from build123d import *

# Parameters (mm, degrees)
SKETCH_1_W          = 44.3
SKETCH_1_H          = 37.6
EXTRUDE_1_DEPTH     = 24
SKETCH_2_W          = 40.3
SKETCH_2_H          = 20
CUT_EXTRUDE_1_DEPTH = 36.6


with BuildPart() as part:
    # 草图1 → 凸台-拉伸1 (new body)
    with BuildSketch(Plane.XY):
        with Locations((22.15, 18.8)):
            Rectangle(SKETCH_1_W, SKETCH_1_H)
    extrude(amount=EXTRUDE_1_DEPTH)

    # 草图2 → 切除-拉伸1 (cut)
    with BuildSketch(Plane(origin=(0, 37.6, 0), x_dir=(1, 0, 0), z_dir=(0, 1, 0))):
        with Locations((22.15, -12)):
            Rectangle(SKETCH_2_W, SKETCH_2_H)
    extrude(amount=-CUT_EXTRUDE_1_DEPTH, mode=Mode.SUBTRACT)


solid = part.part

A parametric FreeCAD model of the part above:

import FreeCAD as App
import Part
import Sketcher

V = App.Vector
Q = App.Units.Quantity


def add_polygon(sketch, points):
    """Adds a closed chain of lines whose ends are joined by coincident constraints."""
    first, n = sketch.GeometryCount, len(points)
    for a, b in zip(points, points[1:] + points[:1]):
        sketch.addGeometry(Part.LineSegment(App.Vector(*a, 0), App.Vector(*b, 0)), False)
    for i in range(n):
        sketch.addConstraint(Sketcher.Constraint("Coincident", first + i, 2, first + (i + 1) % n, 1))

doc = App.newDocument("Part")
body = doc.addObject("PartDesign::Body", "Body")

sketch1 = body.newObject("Sketcher::SketchObject", "Sketch")
sketch1.AttachmentSupport = (doc.getObject("XY_Plane"), [""])
sketch1.MapMode = "FlatFace"
add_polygon(sketch1, [(0, 38), (0, 0), (44, 0), (44, 38)])
sketch1.addConstraint(Sketcher.Constraint("Vertical", 0))
sketch1.addConstraint(Sketcher.Constraint("Horizontal", 1))
sketch1.addConstraint(Sketcher.Constraint("Vertical", 2))
sketch1.addConstraint(Sketcher.Constraint("Horizontal", 3))
sketch1.addConstraint(Sketcher.Constraint("Coincident", 0, 2, -1, 1))
sketch1.addConstraint(Sketcher.Constraint("DistanceX", 1, 1, 1, 2, Q("44.3 mm")))
sketch1.addConstraint(Sketcher.Constraint("DistanceY", 0, 2, 0, 1, Q("37.6 mm")))
pad1 = body.newObject("PartDesign::Pad", "Pad")
pad1.Profile = sketch1
pad1.Length = 24

sketch2 = body.newObject("Sketcher::SketchObject", "Sketch001")
sketch2.AttachmentSupport = (doc.getObject("XZ_Plane"), [""])
sketch2.MapMode = "FlatFace"
sketch2.AttachmentOffset = App.Placement(V(0, 0, -37.6), App.Rotation())
add_polygon(sketch2, [(2, 2), (2, 22), (42, 22), (42, 2)])
sketch2.addConstraint(Sketcher.Constraint("Vertical", 0))
sketch2.addConstraint(Sketcher.Constraint("Horizontal", 1))
sketch2.addConstraint(Sketcher.Constraint("Vertical", 2))
sketch2.addConstraint(Sketcher.Constraint("Horizontal", 3))
sketch2.addConstraint(Sketcher.Constraint("DistanceY", 0, 1, 0, 2, Q("20 mm")))
sketch2.addConstraint(Sketcher.Constraint("DistanceX", 1, 1, 1, 2, Q("40.3 mm")))
sketch2.addConstraint(Sketcher.Constraint("DistanceX", -1, 1, 0, 2, Q("2 mm")))
sketch2.addConstraint(Sketcher.Constraint("DistanceY", -1, 1, 0, 2, Q("22 mm")))
pocket1 = body.newObject("PartDesign::Pocket", "Pocket")
pocket1.Profile = sketch2
pocket1.Length = 36.6
pocket1.Reversed = True

doc.recompute()
